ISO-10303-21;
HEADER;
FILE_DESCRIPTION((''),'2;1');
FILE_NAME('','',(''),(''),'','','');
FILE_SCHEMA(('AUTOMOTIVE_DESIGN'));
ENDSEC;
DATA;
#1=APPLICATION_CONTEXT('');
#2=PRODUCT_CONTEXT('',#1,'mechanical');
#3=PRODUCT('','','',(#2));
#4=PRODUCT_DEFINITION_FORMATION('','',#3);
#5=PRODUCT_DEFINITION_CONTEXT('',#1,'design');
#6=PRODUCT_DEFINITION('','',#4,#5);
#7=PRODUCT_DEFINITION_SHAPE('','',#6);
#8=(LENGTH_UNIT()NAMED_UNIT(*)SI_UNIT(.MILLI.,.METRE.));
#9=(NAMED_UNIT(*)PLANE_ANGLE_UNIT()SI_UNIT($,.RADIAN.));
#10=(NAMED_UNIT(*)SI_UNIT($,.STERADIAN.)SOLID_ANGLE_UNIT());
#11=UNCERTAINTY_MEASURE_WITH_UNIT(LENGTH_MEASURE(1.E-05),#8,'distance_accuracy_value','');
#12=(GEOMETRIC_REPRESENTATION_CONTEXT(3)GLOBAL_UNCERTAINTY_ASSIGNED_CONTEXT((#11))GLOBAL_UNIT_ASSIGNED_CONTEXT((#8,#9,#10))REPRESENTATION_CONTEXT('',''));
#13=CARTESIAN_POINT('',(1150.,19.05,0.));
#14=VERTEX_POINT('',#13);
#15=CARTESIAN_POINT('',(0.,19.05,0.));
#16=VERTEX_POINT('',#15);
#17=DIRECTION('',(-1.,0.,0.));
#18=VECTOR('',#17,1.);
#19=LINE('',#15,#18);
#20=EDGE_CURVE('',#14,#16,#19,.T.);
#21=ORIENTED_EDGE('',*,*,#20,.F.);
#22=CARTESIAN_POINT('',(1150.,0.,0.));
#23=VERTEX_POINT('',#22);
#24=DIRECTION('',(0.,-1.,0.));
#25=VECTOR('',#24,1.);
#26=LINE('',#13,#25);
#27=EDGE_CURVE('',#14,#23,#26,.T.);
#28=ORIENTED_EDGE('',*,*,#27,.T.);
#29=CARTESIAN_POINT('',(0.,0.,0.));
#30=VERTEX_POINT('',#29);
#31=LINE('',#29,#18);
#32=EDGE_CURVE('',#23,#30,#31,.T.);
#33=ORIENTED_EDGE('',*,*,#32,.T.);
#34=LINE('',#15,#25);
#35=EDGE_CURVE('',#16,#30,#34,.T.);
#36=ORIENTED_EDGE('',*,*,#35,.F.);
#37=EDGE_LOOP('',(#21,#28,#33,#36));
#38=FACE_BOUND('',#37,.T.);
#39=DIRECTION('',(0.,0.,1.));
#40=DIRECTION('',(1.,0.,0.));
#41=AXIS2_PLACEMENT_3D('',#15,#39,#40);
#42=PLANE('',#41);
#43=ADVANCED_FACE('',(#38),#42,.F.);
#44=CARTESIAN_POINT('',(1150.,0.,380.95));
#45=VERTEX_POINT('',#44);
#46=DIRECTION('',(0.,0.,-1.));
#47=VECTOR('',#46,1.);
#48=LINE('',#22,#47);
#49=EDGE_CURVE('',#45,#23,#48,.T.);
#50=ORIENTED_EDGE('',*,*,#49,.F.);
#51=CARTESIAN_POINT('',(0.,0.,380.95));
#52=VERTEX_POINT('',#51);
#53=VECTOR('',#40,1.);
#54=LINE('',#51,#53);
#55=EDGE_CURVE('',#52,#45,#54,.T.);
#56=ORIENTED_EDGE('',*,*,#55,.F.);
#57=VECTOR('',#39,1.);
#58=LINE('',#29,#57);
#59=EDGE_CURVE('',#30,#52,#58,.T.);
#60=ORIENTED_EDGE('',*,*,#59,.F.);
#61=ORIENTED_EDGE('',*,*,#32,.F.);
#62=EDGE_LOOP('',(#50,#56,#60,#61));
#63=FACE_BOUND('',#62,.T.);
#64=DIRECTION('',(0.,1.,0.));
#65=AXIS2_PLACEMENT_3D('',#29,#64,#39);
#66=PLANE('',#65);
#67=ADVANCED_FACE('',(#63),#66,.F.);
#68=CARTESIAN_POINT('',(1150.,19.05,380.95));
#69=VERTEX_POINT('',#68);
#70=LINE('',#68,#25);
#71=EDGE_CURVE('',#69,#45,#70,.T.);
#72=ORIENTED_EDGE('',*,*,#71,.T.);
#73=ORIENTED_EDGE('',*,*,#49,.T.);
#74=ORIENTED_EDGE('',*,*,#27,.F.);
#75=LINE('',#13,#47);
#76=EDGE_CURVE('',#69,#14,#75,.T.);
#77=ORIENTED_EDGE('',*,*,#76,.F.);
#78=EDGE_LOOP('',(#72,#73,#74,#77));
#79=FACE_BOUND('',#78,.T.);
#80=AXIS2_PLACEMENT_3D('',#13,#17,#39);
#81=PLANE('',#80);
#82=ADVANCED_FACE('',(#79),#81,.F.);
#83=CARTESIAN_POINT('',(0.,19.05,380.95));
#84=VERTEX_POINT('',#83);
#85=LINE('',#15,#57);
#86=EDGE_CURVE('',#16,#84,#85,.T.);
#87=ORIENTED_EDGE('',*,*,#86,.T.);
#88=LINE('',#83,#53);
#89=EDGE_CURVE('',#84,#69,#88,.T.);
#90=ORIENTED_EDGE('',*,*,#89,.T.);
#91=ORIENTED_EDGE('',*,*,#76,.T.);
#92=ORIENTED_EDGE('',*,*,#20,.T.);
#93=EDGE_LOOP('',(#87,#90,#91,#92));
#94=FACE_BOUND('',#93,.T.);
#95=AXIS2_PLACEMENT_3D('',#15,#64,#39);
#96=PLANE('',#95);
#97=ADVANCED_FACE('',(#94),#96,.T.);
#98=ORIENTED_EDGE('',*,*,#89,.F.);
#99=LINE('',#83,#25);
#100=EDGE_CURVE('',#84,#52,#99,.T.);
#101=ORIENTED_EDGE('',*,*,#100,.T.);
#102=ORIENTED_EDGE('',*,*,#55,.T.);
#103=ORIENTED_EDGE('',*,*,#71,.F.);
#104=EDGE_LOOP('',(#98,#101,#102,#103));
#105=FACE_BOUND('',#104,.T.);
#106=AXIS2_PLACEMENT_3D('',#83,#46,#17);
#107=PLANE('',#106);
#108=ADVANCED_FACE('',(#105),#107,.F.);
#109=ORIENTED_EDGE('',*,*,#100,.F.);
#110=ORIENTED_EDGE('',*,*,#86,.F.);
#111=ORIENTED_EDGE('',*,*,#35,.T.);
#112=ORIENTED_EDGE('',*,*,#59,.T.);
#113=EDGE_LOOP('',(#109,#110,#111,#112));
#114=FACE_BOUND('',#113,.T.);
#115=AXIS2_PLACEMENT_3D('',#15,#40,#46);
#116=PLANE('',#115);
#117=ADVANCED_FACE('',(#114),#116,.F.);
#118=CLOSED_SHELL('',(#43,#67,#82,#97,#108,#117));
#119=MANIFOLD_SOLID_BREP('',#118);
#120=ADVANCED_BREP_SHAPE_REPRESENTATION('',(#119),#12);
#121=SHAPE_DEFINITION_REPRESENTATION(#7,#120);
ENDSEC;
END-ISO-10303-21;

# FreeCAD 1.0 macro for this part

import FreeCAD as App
import Part
import Sketcher

V = App.Vector
Q = App.Units.Quantity

doc = App.newDocument("Part")
body = doc.addObject("PartDesign::Body", "Body")

sketch1 = doc.addObject("Sketcher::SketchObject", "Sketch")
body.addObject(sketch1)
sketch1.AttachmentSupport = (doc.XZ_Plane, [""])
sketch1.MapMode = "FlatFace"
sketch1.addGeometry([
    Part.LineSegment(V(0, 0, 0), V(0, 381, 0)),
    Part.LineSegment(V(0, 381, 0), V(1150, 381, 0)),
    Part.LineSegment(V(1150, 381, 0), V(1150, 0, 0)),
    Part.LineSegment(V(1150, 0, 0), V(0, 0, 0)),
], False)
sketch1.addConstraint([
    Sketcher.Constraint("Coincident", 0, 2, 1, 1),
    Sketcher.Constraint("Coincident", 1, 2, 2, 1),
    Sketcher.Constraint("Coincident", 2, 2, 3, 1),
    Sketcher.Constraint("Coincident", 3, 2, 0, 1),
    Sketcher.Constraint("Vertical", 0),
    Sketcher.Constraint("Horizontal", 1),
    Sketcher.Constraint("Vertical", 2),
    Sketcher.Constraint("Horizontal", 3),
    Sketcher.Constraint("Coincident", 3, 2, -1, 1),
    Sketcher.Constraint("DistanceX", 1, 1, 1, 2, Q("1150 mm")),
    Sketcher.Constraint("DistanceY", 0, 1, 0, 2, Q("380.95 mm")),
])
pad1 = doc.addObject("PartDesign::Pad", "Pad")
body.addObject(pad1)
pad1.Profile = sketch1
pad1.Length = 19.05
pad1.Reversed = True

doc.recompute()
